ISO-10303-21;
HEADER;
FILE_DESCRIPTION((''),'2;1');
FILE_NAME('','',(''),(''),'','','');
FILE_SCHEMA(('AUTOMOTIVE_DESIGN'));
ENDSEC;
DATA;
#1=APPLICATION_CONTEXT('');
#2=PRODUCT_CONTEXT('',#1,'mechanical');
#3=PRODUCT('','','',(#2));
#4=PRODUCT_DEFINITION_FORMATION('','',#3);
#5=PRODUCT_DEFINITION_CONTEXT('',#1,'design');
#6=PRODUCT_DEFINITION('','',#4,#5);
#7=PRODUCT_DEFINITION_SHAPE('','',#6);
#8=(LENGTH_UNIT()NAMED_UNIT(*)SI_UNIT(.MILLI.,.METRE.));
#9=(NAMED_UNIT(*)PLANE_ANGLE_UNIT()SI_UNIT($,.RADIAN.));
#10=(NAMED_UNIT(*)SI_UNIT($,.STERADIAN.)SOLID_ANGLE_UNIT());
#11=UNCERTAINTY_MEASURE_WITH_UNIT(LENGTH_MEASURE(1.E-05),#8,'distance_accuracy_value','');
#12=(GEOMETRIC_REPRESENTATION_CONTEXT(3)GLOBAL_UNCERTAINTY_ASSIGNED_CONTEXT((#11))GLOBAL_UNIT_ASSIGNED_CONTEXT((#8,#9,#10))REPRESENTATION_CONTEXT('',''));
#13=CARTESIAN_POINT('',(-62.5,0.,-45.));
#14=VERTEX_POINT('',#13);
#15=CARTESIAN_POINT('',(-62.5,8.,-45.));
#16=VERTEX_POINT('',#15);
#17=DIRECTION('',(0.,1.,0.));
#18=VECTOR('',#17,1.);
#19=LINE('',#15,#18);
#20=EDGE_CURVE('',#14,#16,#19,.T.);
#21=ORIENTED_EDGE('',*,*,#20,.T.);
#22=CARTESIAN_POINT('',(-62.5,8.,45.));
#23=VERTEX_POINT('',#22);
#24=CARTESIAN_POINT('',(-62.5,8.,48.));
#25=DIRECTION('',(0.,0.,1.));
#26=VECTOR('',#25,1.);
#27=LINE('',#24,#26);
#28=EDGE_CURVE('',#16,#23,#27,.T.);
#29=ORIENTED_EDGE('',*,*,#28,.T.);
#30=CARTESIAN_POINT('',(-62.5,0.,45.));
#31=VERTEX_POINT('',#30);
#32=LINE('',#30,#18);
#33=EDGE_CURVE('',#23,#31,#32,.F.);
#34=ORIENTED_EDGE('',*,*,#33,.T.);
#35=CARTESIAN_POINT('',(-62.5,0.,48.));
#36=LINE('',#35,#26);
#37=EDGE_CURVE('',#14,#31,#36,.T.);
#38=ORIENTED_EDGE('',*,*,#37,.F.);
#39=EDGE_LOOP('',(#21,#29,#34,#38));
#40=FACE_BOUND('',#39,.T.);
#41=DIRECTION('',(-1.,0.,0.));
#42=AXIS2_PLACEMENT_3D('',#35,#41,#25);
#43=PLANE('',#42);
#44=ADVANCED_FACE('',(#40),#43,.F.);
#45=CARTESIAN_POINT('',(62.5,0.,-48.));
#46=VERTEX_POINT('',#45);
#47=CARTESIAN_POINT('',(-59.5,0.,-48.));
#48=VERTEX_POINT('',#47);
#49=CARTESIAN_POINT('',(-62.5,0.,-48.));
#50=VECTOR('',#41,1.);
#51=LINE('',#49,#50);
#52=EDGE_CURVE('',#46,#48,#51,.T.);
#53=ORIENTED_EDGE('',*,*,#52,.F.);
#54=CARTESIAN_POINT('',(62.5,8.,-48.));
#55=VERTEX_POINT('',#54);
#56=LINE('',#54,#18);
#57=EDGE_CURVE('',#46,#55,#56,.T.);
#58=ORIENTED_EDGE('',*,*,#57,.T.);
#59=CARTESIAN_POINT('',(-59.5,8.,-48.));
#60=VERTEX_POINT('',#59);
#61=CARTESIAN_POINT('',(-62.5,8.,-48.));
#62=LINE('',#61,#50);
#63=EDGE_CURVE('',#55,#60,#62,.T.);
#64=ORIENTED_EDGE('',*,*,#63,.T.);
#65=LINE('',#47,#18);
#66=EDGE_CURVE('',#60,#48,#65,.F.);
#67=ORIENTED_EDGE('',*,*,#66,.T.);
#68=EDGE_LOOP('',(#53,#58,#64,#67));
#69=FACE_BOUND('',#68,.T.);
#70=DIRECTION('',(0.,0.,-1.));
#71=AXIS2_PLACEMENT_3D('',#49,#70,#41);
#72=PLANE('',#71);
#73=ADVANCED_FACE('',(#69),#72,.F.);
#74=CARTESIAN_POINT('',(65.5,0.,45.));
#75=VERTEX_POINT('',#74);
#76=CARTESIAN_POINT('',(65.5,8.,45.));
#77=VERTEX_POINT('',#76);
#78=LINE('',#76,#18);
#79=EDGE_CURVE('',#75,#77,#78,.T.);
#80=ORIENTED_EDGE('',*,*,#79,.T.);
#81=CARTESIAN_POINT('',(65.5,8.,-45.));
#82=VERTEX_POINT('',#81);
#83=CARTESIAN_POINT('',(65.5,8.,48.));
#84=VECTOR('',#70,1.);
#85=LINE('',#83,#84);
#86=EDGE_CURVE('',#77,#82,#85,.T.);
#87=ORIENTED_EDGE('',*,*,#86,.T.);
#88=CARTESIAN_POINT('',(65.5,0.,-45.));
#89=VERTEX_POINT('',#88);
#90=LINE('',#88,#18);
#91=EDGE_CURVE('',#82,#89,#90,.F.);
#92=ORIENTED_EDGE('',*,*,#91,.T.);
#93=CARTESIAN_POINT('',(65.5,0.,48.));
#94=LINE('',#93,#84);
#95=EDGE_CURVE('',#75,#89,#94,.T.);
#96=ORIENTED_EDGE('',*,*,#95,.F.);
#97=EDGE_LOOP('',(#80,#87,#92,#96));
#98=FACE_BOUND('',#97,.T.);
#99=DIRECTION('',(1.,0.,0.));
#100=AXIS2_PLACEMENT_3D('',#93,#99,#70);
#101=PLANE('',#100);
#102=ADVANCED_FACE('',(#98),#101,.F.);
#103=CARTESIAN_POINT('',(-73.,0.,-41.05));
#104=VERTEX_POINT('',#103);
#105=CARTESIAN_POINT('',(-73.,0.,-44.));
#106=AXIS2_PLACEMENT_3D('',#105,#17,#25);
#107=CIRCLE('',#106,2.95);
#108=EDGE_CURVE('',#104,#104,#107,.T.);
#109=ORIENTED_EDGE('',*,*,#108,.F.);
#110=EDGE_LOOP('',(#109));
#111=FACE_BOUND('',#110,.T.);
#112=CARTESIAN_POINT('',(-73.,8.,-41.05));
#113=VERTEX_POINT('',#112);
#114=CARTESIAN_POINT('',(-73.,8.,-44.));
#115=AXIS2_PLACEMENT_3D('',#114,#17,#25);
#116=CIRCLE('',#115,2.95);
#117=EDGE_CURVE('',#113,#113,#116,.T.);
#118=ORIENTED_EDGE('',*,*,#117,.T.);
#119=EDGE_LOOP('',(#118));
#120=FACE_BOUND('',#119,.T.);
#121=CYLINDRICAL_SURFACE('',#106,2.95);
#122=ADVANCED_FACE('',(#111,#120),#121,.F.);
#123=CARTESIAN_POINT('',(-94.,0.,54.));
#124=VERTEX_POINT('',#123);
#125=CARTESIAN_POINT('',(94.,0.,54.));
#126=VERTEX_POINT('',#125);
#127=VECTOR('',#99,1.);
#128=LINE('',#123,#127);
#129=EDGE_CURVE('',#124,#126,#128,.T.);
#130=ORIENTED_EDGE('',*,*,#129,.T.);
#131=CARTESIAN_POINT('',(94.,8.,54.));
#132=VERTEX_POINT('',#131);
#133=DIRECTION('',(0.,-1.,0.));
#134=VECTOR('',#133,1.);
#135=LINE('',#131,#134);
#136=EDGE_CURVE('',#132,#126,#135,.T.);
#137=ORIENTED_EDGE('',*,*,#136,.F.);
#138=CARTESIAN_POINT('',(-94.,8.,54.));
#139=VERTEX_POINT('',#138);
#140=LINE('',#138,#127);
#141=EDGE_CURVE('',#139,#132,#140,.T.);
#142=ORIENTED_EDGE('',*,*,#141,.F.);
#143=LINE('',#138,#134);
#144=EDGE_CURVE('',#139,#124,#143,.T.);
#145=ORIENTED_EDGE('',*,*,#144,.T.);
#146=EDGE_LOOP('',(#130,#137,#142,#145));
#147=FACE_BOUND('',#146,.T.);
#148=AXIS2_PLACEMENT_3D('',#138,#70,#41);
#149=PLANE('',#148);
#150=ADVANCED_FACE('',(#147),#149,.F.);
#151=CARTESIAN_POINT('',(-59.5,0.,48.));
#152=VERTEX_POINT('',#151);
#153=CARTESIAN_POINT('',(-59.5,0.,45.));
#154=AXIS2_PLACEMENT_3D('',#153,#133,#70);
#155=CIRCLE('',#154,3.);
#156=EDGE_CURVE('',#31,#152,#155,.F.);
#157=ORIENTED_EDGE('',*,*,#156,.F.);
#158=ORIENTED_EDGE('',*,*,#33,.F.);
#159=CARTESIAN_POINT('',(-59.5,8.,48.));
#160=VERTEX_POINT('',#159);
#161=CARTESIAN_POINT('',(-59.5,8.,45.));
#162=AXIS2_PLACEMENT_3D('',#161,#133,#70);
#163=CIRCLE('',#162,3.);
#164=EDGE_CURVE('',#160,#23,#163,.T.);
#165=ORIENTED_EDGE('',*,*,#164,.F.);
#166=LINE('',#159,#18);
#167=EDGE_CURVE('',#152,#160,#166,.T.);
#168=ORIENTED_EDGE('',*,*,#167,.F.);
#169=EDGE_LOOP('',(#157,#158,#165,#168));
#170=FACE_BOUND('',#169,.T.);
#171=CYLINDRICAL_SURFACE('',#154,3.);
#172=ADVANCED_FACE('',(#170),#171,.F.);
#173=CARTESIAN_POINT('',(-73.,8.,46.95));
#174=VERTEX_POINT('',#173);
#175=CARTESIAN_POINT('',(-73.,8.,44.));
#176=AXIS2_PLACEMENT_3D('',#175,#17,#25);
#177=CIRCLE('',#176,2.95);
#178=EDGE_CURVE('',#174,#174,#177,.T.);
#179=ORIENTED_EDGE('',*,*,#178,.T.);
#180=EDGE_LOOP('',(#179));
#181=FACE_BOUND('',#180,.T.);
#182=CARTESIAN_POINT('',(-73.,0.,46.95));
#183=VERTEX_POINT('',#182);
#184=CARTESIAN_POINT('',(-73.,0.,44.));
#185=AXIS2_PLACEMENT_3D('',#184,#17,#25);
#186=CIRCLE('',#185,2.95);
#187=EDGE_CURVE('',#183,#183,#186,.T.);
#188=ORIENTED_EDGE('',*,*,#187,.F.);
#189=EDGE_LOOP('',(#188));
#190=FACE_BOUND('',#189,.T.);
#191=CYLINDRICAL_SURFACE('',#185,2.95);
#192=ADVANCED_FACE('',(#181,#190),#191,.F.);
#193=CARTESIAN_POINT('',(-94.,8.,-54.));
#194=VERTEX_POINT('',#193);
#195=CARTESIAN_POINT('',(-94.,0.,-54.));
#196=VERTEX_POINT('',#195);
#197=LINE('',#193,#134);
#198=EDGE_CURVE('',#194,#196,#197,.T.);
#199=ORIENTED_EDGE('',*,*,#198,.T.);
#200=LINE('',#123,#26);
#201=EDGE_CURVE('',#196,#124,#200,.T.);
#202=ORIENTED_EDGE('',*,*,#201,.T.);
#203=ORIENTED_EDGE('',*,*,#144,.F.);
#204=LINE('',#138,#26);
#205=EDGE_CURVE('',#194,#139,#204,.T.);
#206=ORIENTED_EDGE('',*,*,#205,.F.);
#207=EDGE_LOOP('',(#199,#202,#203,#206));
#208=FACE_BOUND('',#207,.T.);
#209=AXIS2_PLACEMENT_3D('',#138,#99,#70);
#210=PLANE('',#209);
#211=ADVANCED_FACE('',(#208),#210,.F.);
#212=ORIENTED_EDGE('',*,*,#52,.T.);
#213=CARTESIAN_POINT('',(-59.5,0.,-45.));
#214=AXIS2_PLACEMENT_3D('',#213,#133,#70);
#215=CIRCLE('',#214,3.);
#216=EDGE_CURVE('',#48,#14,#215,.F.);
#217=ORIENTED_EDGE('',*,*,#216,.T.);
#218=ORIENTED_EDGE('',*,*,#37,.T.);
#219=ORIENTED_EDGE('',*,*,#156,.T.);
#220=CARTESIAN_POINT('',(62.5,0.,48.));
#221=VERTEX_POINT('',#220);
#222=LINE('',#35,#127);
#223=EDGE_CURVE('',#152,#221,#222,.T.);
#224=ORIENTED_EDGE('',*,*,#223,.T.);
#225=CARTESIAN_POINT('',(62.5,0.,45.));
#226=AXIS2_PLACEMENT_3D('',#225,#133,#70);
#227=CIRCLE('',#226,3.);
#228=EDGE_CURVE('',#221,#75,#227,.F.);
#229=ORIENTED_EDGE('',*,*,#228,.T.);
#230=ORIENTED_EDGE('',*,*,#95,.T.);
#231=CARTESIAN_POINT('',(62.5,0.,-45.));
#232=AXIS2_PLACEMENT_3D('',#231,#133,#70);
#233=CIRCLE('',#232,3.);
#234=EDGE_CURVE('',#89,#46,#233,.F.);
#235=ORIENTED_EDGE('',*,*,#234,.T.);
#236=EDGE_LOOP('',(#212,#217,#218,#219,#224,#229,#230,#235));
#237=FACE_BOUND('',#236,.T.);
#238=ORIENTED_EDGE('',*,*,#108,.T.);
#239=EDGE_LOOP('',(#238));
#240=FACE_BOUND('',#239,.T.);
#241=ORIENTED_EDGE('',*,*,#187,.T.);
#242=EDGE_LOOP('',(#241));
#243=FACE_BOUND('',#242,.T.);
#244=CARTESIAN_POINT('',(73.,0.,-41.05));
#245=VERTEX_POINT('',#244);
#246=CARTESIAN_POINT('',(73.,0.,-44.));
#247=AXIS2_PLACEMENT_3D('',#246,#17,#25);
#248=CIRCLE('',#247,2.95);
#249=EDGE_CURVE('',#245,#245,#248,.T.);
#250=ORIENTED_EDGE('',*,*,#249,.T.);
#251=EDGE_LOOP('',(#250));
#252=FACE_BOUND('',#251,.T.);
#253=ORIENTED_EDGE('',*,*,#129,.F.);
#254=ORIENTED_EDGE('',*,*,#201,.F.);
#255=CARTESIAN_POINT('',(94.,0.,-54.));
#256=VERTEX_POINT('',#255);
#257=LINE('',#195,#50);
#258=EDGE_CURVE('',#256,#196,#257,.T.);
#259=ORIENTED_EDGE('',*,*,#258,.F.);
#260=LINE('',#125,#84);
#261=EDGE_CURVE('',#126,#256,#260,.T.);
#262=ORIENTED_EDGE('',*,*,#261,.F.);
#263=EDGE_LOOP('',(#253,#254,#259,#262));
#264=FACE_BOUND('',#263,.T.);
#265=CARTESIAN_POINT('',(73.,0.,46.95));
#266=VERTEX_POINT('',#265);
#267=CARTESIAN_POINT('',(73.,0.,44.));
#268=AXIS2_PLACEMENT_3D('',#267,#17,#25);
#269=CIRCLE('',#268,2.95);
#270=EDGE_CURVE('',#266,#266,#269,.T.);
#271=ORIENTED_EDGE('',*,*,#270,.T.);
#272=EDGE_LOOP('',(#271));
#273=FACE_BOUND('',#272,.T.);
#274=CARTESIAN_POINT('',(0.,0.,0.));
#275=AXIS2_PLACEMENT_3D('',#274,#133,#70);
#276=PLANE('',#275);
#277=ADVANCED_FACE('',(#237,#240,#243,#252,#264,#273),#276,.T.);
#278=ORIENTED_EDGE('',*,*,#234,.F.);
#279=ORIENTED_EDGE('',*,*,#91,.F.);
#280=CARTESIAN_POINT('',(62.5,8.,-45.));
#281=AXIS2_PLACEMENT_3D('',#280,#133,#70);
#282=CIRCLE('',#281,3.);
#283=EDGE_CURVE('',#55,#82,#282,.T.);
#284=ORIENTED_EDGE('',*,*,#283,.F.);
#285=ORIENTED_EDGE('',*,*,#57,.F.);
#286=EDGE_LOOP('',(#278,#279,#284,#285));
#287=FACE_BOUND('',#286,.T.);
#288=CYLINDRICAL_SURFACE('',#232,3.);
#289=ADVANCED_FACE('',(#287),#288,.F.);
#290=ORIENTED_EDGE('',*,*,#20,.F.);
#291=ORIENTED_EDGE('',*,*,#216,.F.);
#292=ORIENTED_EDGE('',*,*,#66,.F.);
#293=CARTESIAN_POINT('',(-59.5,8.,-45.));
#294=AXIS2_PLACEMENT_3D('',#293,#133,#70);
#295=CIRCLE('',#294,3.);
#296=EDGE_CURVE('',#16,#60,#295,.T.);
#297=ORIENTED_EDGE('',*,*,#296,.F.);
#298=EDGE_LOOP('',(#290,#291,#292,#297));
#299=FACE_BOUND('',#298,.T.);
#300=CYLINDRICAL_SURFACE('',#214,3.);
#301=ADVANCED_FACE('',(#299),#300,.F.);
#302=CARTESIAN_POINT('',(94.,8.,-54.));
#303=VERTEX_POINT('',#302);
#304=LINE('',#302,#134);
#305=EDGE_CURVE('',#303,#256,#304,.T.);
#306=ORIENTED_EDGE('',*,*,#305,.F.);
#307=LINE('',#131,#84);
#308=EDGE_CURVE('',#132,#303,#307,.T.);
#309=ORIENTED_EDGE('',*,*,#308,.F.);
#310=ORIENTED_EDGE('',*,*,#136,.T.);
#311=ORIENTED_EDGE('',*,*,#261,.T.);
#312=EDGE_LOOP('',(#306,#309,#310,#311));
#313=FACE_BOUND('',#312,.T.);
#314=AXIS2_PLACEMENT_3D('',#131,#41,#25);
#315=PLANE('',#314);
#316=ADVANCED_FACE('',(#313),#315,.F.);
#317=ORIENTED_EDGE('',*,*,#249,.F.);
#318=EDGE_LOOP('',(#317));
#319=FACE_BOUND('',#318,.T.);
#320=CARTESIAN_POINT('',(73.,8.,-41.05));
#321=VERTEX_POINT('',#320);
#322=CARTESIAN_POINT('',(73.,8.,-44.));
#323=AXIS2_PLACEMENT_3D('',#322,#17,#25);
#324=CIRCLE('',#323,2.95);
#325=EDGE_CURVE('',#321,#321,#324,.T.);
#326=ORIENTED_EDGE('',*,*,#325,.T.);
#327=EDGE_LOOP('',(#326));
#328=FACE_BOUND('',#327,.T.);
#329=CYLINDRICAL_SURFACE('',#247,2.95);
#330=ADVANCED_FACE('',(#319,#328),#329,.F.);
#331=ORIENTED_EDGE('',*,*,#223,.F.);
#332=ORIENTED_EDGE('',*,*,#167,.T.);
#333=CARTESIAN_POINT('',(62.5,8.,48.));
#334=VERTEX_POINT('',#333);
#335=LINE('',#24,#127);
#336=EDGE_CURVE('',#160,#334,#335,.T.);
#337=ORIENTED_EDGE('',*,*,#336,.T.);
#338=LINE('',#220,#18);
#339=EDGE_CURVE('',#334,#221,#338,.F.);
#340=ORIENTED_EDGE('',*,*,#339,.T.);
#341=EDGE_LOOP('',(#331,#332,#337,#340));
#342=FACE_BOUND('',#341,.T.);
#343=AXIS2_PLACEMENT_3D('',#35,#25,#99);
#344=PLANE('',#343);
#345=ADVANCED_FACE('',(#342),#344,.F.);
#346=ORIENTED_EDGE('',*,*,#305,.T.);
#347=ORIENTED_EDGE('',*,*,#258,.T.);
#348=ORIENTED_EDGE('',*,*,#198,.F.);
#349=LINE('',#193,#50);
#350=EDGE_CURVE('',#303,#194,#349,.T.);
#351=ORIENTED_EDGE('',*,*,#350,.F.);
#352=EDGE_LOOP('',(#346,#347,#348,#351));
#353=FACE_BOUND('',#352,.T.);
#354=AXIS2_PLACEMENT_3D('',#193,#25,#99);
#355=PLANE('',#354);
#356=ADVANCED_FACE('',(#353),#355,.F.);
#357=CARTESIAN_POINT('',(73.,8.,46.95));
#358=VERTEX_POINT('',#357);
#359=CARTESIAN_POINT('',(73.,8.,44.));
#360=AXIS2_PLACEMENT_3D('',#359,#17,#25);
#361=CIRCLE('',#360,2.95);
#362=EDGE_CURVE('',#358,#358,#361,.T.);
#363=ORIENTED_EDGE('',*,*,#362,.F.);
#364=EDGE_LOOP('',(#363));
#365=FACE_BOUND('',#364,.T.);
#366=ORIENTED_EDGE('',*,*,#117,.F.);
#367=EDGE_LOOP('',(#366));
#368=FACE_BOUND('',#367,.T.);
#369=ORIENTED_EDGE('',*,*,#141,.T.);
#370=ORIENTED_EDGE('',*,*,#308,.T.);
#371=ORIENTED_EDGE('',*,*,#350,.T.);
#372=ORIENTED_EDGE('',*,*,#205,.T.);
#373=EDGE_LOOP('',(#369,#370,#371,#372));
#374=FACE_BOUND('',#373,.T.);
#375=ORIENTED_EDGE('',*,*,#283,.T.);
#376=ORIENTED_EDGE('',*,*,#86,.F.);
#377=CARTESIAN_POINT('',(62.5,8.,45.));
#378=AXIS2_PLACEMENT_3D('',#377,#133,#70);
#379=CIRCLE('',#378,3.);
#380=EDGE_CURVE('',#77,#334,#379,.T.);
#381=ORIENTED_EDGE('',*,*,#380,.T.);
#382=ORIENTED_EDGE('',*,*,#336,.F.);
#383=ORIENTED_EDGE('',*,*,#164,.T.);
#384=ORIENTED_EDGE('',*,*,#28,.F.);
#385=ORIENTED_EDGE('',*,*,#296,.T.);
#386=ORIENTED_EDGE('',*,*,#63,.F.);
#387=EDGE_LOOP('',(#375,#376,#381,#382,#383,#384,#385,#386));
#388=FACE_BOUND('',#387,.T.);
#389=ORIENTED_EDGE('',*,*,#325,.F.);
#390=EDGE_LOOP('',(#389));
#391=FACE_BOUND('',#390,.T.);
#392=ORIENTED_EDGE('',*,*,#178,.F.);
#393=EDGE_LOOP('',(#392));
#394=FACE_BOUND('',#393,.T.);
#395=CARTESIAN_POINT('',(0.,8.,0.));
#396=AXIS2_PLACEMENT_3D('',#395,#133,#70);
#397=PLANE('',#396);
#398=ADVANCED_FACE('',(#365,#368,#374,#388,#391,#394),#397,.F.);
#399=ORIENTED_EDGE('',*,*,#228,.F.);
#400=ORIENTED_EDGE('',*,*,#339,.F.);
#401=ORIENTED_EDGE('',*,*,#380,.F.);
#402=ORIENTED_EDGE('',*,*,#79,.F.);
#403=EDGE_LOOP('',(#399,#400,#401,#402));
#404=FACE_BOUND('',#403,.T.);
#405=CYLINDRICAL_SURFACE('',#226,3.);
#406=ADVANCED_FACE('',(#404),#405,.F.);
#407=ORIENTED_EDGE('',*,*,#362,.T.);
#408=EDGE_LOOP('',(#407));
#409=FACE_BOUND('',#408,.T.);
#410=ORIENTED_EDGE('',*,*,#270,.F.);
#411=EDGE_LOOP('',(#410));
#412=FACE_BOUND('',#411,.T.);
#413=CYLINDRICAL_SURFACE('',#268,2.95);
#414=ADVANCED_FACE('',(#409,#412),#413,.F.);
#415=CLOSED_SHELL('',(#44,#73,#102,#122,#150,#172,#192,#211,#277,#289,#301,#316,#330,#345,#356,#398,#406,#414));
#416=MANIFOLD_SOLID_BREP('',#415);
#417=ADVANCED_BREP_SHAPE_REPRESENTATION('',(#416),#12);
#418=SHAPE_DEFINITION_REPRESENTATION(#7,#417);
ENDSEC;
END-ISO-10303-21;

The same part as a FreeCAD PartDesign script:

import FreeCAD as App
import Part
import Sketcher

V = App.Vector
Q = App.Units.Quantity


def edges_at(feature, points):
    """Names of the edges that pass closest to the given points."""
    edges = feature.Shape.Edges
    near = lambda p: min(range(len(edges)), key=lambda i: edges[i].distToShape(Part.Vertex(*p))[0])
    return sorted({f"Edge{near(p) + 1}" for p in points})


def add_polygon(sketch, points):
    """Adds a closed chain of lines whose ends are joined by coincident constraints."""
    first, n = sketch.GeometryCount, len(points)
    for a, b in zip(points, points[1:] + points[:1]):
        sketch.addGeometry(Part.LineSegment(App.Vector(*a, 0), App.Vector(*b, 0)), False)
    for i in range(n):
        sketch.addConstraint(Sketcher.Constraint("Coincident", first + i, 2, first + (i + 1) % n, 1))

doc = App.newDocument("Part")
body = doc.addObject("PartDesign::Body", "Body")

sketch1 = body.newObject("Sketcher::SketchObject", "Sketch")
sketch1.AttachmentSupport = (doc.getObject("XZ_Plane"), [""])
sketch1.MapMode = "FlatFace"
add_polygon(sketch1, [(-94, -54), (-94, 54), (94, 54), (94, -54)])
sketch1.addConstraint(Sketcher.Constraint("Vertical", 0))
sketch1.addConstraint(Sketcher.Constraint("Horizontal", 1))
sketch1.addConstraint(Sketcher.Constraint("Vertical", 2))
sketch1.addConstraint(Sketcher.Constraint("Horizontal", 3))
sketch1.addConstraint(Sketcher.Constraint("Symmetric", 0, 2, 2, 2, -1, 1))
sketch1.addConstraint(Sketcher.Constraint("DistanceX", 1, 1, 1, 2, Q("188 mm")))
sketch1.addConstraint(Sketcher.Constraint("DistanceY", 0, 1, 0, 2, Q("108 mm")))
pad1 = body.newObject("PartDesign::Pad", "Pad")
pad1.Profile = sketch1
pad1.Length = 8
pad1.Reversed = True

sketch2 = body.newObject("Sketcher::SketchObject", "Sketch001")
sketch2.AttachmentSupport = (doc.getObject("XZ_Plane"), [""])
sketch2.MapMode = "FlatFace"
sketch2.AttachmentOffset = App.Placement(V(0, 0, -8), App.Rotation())
sketch2.addGeometry(Part.Circle(V(-73, -44, 0), V(0, 0, 1), 3), False)
sketch2.addGeometry(Part.Circle(V(73, -44, 0), V(0, 0, 1), 3), False)
sketch2.addGeometry(Part.Circle(V(-73, 44, 0), V(0, 0, 1), 3), False)
sketch2.addGeometry(Part.Circle(V(73, 44, 0), V(0, 0, 1), 3), False)
add_polygon(sketch2, [(-62.5, -48), (-62.5, 48), (65.5, 48), (65.5, -48)])
sketch2.addConstraint(Sketcher.Constraint("Vertical", 4))
sketch2.addConstraint(Sketcher.Constraint("Horizontal", 5))
sketch2.addConstraint(Sketcher.Constraint("Vertical", 6))
sketch2.addConstraint(Sketcher.Constraint("Horizontal", 7))
sketch2.addConstraint(Sketcher.Constraint("Equal", 0, 1))
sketch2.addConstraint(Sketcher.Constraint("Equal", 1, 2))
sketch2.addConstraint(Sketcher.Constraint("Equal", 2, 3))
sketch2.addConstraint(Sketcher.Constraint("Symmetric", 1, 3, 2, 3, -1, 1))
sketch2.addConstraint(Sketcher.Constraint("Symmetric", 0, 3, 3, 3, -1, 1))
sketch2.addConstraint(Sketcher.Constraint("Symmetric", 0, 3, 1, 3, -2))
sketch2.addConstraint(Sketcher.Constraint("Diameter", 0, Q("5.9 mm")))
sketch2.addConstraint(Sketcher.Constraint("DistanceX", 5, 1, 5, 2, Q("128 mm")))
sketch2.addConstraint(Sketcher.Constraint("DistanceY", 4, 1, 4, 2, Q("96 mm")))
sketch2.addConstraint(Sketcher.Constraint("DistanceX", 0, 3, -1, 1, Q("73 mm")))
sketch2.addConstraint(Sketcher.Constraint("DistanceY", 0, 3, -1, 1, Q("44 mm")))
sketch2.addConstraint(Sketcher.Constraint("DistanceY", -1, 1, 4, 2, Q("48 mm")))
sketch2.addConstraint(Sketcher.Constraint("DistanceX", 4, 2, -1, 1, Q("62.5 mm")))
pocket1 = body.newObject("PartDesign::Pocket", "Pocket")
pocket1.Profile = sketch2
pocket1.Type = "ThroughAll"
pocket1.Reversed = True
doc.recompute()

fillet = body.newObject("PartDesign::Fillet", "Fillet")
fillet.Base = (pocket1, edges_at(pocket1, [
    (65.5, 4, -48),
    (65.5, 4, 48),
    (-62.5, 4, 48),
    (-62.5, 4, -48),
]))
fillet.Radius = 3

doc.recompute()
